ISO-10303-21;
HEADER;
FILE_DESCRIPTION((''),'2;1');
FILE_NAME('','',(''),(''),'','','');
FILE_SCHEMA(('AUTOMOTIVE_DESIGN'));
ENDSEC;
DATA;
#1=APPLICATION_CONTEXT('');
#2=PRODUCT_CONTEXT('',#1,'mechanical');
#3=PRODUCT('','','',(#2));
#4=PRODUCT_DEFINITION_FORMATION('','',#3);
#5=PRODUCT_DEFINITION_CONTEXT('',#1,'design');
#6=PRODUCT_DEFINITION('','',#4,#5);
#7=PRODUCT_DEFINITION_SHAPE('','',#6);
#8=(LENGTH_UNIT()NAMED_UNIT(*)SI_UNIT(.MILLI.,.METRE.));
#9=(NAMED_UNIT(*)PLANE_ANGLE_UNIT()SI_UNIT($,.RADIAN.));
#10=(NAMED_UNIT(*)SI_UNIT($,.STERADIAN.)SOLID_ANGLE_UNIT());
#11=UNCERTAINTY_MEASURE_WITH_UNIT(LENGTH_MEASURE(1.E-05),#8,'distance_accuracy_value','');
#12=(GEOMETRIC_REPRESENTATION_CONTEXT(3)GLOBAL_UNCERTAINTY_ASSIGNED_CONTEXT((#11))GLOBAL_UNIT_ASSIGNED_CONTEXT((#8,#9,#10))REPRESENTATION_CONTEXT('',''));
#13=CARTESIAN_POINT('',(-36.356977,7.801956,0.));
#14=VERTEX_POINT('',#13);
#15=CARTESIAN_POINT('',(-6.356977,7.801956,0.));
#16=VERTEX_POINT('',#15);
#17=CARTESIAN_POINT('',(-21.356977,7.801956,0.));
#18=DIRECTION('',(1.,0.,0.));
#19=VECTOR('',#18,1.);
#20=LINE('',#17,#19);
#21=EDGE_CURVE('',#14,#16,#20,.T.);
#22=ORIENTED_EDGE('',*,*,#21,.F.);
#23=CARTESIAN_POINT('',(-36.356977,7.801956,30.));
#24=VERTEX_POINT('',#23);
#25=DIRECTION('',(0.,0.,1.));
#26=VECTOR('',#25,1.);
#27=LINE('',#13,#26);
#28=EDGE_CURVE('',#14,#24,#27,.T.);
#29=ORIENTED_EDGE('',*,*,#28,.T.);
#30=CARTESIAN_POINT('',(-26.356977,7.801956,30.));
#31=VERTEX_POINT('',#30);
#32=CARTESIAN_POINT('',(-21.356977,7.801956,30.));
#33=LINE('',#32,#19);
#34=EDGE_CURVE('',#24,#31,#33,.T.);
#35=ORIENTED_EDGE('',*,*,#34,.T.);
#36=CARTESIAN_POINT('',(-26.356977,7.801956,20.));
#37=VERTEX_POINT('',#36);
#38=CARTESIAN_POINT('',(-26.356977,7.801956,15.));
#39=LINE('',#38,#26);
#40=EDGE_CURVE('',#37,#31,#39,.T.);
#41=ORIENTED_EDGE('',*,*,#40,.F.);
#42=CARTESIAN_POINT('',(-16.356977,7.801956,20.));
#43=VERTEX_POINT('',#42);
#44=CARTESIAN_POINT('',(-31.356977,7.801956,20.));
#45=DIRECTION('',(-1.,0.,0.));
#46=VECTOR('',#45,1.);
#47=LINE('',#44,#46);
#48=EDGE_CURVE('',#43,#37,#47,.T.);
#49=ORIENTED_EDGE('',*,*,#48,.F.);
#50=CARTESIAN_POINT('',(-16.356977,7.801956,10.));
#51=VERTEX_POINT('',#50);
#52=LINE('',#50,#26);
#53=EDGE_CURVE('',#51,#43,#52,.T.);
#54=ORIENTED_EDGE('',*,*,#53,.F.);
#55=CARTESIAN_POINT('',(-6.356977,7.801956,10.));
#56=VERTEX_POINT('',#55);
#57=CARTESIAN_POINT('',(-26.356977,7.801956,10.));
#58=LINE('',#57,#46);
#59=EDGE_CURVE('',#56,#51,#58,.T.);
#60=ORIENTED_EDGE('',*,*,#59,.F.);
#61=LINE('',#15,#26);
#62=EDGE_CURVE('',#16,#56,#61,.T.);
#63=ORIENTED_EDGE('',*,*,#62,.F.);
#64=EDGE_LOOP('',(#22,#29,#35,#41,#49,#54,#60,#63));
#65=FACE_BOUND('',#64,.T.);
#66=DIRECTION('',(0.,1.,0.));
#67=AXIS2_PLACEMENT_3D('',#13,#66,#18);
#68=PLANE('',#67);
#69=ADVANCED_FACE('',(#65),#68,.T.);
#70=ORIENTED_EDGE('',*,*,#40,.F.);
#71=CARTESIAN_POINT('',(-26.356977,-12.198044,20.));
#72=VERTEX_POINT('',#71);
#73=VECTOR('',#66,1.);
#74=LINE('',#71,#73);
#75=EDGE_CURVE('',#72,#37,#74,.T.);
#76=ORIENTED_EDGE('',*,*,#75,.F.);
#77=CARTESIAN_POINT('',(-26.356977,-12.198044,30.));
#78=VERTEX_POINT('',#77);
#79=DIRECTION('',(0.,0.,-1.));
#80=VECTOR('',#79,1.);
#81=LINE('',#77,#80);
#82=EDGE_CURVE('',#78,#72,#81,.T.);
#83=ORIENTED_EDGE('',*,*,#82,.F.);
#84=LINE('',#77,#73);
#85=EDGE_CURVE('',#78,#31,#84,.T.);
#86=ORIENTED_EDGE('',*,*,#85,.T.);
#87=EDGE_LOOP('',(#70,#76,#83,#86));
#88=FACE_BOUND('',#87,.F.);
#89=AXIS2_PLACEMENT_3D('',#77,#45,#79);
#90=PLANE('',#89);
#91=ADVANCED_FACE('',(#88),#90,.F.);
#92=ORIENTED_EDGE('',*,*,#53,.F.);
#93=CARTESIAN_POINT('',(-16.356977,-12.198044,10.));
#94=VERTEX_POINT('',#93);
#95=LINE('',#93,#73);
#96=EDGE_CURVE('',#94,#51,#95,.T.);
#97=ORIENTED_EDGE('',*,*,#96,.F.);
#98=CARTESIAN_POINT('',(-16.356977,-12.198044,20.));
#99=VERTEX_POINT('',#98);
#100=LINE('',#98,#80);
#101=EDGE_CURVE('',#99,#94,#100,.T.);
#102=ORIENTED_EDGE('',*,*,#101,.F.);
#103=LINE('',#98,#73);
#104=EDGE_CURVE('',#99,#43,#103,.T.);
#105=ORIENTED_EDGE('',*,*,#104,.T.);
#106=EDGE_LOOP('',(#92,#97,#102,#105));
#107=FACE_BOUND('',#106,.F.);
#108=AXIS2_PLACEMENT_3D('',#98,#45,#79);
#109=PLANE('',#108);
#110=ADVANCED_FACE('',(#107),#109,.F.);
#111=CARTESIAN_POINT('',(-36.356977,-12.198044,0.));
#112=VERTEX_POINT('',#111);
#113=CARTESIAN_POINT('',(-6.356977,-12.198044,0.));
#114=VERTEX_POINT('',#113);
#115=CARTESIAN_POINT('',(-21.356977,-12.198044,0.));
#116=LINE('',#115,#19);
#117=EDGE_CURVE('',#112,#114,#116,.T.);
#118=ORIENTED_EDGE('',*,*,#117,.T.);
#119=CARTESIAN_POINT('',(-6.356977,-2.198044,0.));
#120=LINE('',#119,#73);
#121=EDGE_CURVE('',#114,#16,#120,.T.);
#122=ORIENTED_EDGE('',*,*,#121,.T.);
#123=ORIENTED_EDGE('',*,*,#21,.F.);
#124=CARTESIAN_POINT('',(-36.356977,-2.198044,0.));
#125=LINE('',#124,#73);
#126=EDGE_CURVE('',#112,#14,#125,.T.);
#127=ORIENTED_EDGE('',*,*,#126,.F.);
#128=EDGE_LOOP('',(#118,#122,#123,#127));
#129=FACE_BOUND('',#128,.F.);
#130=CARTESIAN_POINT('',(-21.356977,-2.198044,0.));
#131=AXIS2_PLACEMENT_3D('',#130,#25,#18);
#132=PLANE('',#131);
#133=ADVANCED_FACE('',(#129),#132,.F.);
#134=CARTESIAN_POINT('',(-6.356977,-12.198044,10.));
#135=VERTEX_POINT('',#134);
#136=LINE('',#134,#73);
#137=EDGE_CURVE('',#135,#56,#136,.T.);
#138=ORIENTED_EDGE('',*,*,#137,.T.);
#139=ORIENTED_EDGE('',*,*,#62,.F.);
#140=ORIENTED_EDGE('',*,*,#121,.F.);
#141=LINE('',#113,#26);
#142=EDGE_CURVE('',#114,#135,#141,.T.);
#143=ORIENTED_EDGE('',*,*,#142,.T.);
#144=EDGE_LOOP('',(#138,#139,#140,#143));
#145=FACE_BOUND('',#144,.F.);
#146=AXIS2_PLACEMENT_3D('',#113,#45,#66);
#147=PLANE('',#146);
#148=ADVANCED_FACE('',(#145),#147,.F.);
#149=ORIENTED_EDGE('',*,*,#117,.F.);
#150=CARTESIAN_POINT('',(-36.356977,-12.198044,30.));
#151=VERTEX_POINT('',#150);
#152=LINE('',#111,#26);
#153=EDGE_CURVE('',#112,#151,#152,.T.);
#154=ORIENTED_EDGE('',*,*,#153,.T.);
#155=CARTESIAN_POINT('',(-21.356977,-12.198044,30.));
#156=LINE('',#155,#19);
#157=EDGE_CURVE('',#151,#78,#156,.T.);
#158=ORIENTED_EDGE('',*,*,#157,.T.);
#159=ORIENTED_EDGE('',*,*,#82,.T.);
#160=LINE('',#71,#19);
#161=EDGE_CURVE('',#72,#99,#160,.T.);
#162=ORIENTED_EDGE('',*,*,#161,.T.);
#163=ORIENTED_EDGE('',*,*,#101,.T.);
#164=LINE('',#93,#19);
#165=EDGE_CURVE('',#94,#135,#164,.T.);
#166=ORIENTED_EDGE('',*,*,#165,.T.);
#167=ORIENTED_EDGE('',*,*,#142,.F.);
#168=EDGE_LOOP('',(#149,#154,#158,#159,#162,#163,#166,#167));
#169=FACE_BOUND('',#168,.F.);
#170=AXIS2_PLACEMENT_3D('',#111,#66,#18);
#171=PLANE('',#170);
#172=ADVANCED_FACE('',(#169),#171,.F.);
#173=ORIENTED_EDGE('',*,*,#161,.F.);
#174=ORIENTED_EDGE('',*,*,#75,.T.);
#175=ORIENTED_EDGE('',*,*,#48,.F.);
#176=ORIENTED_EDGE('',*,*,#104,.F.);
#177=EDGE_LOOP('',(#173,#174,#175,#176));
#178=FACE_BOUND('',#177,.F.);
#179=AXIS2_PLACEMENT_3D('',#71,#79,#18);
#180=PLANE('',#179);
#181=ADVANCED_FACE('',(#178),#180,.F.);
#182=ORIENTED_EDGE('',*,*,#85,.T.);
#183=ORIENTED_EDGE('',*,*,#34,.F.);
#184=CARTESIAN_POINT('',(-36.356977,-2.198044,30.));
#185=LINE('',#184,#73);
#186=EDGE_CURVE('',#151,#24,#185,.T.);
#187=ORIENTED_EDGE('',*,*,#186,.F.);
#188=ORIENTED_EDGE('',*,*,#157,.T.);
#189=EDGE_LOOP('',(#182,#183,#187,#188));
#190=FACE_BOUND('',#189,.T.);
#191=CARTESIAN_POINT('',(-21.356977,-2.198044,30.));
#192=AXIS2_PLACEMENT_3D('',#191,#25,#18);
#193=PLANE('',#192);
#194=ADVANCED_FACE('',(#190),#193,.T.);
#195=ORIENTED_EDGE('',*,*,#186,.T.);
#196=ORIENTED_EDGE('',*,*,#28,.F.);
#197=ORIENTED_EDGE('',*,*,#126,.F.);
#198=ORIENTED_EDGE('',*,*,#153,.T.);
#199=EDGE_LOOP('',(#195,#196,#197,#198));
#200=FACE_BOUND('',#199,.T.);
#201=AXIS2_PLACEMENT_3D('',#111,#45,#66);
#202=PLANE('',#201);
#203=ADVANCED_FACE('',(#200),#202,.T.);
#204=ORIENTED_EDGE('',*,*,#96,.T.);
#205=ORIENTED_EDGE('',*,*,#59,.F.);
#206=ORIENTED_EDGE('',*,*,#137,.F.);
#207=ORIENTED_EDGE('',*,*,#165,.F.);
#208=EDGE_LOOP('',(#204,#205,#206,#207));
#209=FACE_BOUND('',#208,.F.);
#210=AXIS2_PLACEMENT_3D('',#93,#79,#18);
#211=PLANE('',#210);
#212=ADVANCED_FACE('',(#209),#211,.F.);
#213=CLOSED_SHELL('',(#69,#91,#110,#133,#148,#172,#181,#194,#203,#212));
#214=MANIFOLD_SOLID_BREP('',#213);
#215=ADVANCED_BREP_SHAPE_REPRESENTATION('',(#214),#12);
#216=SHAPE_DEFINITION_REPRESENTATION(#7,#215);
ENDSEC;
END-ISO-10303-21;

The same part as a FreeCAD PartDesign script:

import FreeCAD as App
import Part
import Sketcher


def add_polygon(sketch, points):
    """Adds a closed chain of lines whose ends are joined by coincident constraints."""
    first, n = sketch.GeometryCount, len(points)
    for a, b in zip(points, points[1:] + points[:1]):
        sketch.addGeometry(Part.LineSegment(App.Vector(*a, 0), App.Vector(*b, 0)), False)
    for i in range(n):
        sketch.addConstraint(Sketcher.Constraint("Coincident", first + i, 2, first + (i + 1) % n, 1))

doc = App.newDocument("Part")
body = doc.addObject("PartDesign::Body", "Body")

sketch1 = body.newObject("Sketcher::SketchObject", "Sketch")
sketch1.AttachmentSupport = (doc.getObject("XY_Plane"), [""])
sketch1.MapMode = "FlatFace"
add_polygon(sketch1, [(-36, 8), (-36, -12), (-6, -12), (-6, 8)])
sketch1.addConstraint(Sketcher.Constraint("Vertical", 0))
sketch1.addConstraint(Sketcher.Constraint("Horizontal", 1))
sketch1.addConstraint(Sketcher.Constraint("Vertical", 2))
sketch1.addConstraint(Sketcher.Constraint("Horizontal", 3))
sketch1.addConstraint(Sketcher.Constraint("DistanceX", 1, 1, 1, 2, 30.0))
sketch1.addConstraint(Sketcher.Constraint("DistanceY", 0, 2, 0, 1, 20.0))
sketch1.addConstraint(Sketcher.Constraint("DistanceX", 0, 2, -1, 1, 36.356977))
sketch1.addConstraint(Sketcher.Constraint("DistanceY", 0, 2, -1, 1, 12.198044))
pad1 = body.newObject("PartDesign::Pad", "Pad")
pad1.Profile = sketch1
pad1.Length = 30

sketch2 = body.newObject("Sketcher::SketchObject", "Sketch001")
sketch2.AttachmentSupport = (doc.getObject("XZ_Plane"), [""])
sketch2.MapMode = "FlatFace"
sketch2.AttachmentOffset = App.Placement(App.Vector(0, 0, 12.198044), App.Rotation())
add_polygon(sketch2, [(-6, 30), (-26, 30), (-26, 20), (-16, 20), (-16, 10), (-6, 10)])
sketch2.addConstraint(Sketcher.Constraint("Horizontal", 0))
sketch2.addConstraint(Sketcher.Constraint("Vertical", 1))
sketch2.addConstraint(Sketcher.Constraint("Horizontal", 2))
sketch2.addConstraint(Sketcher.Constraint("Vertical", 3))
sketch2.addConstraint(Sketcher.Constraint("Horizontal", 4))
sketch2.addConstraint(Sketcher.Constraint("Vertical", 5))
sketch2.addConstraint(Sketcher.Constraint("Equal", 2, 4))
sketch2.addConstraint(Sketcher.Constraint("Equal", 4, 1))
sketch2.addConstraint(Sketcher.Constraint("Equal", 1, 3))
sketch2.addConstraint(Sketcher.Constraint("DistanceX", 0, 2, 0, 1, 20.0))
sketch2.addConstraint(Sketcher.Constraint("DistanceY", -1, 1, 0, 2, 30.0))
sketch2.addConstraint(Sketcher.Constraint("DistanceX", 0, 2, -1, 1, 26.356977))
pocket1 = body.newObject("PartDesign::Pocket", "Pocket")
pocket1.Profile = sketch2
pocket1.Type = "ThroughAll"

doc.recompute()
